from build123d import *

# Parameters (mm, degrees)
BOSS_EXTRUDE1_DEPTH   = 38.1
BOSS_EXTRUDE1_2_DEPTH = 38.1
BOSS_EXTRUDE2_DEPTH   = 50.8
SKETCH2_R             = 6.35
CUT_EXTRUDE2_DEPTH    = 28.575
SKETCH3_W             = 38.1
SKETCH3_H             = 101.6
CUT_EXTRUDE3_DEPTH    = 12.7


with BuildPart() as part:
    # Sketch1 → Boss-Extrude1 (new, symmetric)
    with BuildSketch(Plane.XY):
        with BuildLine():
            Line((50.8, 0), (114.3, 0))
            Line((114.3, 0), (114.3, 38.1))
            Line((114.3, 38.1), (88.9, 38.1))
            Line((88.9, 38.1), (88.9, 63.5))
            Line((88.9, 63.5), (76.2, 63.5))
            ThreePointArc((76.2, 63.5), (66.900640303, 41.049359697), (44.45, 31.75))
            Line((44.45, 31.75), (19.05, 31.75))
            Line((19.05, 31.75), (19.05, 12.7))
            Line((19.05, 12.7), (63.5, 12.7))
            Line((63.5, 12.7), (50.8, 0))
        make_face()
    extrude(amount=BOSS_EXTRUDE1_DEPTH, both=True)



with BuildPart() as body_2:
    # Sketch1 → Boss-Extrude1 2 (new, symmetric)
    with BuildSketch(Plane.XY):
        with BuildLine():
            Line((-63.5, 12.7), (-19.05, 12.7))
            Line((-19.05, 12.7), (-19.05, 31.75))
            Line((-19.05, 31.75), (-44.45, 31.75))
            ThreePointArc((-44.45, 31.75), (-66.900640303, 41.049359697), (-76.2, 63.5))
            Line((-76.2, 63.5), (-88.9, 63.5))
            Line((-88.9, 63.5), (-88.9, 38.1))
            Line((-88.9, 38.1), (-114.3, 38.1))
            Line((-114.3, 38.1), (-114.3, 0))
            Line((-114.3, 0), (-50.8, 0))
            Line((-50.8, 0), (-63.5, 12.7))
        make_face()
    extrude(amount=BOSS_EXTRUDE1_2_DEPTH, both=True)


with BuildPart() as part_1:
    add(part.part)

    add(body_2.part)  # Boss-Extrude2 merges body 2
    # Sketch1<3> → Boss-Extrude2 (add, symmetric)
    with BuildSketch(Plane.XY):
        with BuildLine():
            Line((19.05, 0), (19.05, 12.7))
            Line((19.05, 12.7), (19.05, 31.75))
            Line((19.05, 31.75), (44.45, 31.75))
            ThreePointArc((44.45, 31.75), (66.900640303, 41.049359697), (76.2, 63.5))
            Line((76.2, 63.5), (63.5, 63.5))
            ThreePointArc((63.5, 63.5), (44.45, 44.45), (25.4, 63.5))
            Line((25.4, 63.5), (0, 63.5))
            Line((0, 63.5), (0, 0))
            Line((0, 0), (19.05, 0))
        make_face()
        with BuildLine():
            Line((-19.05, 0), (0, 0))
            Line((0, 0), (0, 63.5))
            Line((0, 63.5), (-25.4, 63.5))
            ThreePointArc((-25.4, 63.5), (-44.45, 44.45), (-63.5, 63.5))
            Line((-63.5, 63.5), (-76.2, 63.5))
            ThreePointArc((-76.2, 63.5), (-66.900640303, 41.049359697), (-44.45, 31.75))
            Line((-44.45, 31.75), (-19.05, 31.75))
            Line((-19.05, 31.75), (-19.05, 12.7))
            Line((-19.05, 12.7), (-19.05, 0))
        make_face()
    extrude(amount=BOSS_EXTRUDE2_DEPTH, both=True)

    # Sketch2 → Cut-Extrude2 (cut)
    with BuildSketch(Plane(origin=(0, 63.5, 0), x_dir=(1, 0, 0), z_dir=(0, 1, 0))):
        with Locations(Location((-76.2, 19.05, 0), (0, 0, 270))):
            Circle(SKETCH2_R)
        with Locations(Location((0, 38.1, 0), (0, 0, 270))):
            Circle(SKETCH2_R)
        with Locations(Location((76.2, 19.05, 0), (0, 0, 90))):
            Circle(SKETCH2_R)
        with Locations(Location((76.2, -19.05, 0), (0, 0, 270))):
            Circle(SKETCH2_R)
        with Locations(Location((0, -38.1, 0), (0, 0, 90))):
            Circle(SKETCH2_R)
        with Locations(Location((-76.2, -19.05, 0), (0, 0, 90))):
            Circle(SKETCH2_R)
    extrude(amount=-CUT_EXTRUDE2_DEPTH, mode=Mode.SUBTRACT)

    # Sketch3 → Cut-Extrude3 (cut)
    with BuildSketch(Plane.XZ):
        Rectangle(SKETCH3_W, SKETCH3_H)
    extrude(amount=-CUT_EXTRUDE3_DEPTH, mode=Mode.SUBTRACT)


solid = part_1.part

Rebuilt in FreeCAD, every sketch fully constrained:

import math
import FreeCAD as App
import Part
import Sketcher

V = App.Vector
Q = App.Units.Quantity

doc = App.newDocument("Part")
body = doc.addObject("PartDesign::Body", "Body")

# Sketch on XY plane
sketch1 = body.newObject("Sketcher::SketchObject", "Sketch")
sketch1.AttachmentSupport = (doc.getObject("XY_Plane"), [""])
sketch1.MapMode = "FlatFace"
sketch1.addGeometry(Part.LineSegment(V(51, 0, 0), V(114, 0, 0)), False)
sketch1.addGeometry(Part.LineSegment(V(114, 0, 0), V(114, 38, 0)), False)
sketch1.addGeometry(Part.LineSegment(V(114, 38, 0), V(89, 38, 0)), False)
sketch1.addGeometry(Part.LineSegment(V(89, 38, 0), V(89, 64, 0)), False)
sketch1.addGeometry(Part.LineSegment(V(89, 64, 0), V(76, 64, 0)), False)
sketch1.addGeometry(Part.ArcOfCircle(Part.Circle(V(44, 63, 0), V(0, 0, 1), 32), math.radians(-90), math.radians(0)), False)
sketch1.addGeometry(Part.LineSegment(V(44, 32, 0), V(19, 32, 0)), False)
sketch1.addGeometry(Part.LineSegment(V(19, 32, 0), V(19, 13, 0)), False)
sketch1.addGeometry(Part.LineSegment(V(19, 13, 0), V(64, 13, 0)), False)
sketch1.addGeometry(Part.LineSegment(V(64, 13, 0), V(51, 0, 0)), False)
sketch1.addConstraint(Sketcher.Constraint("Coincident", 0, 2, 1, 1))
sketch1.addConstraint(Sketcher.Constraint("Coincident", 1, 2, 2, 1))
sketch1.addConstraint(Sketcher.Constraint("Coincident", 2, 2, 3, 1))
sketch1.addConstraint(Sketcher.Constraint("Coincident", 3, 2, 4, 1))
sketch1.addConstraint(Sketcher.Constraint("Coincident", 4, 2, 5, 2))
sketch1.addConstraint(Sketcher.Constraint("Tangent", 5, 1, 6, 1))
sketch1.addConstraint(Sketcher.Constraint("Coincident", 6, 2, 7, 1))
sketch1.addConstraint(Sketcher.Constraint("Coincident", 7, 2, 8, 1))
sketch1.addConstraint(Sketcher.Constraint("Coincident", 8, 2, 9, 1))
sketch1.addConstraint(Sketcher.Constraint("Coincident", 9, 2, 0, 1))
sketch1.addConstraint(Sketcher.Constraint("Horizontal", 0))
sketch1.addConstraint(Sketcher.Constraint("Vertical", 1))
sketch1.addConstraint(Sketcher.Constraint("Horizontal", 2))
sketch1.addConstraint(Sketcher.Constraint("Vertical", 3))
sketch1.addConstraint(Sketcher.Constraint("Horizontal", 4))
sketch1.addConstraint(Sketcher.Constraint("Horizontal", 6))
sketch1.addConstraint(Sketcher.Constraint("Vertical", 7))
sketch1.addConstraint(Sketcher.Constraint("Horizontal", 8))
sketch1.addConstraint(Sketcher.Constraint("PointOnObject", 0, 2, -1))
sketch1.addConstraint(Sketcher.Constraint("Horizontal", 5, 3, 3, 2))
sketch1.addConstraint(Sketcher.Constraint("Equal", 2, 6))
sketch1.addConstraint(Sketcher.Constraint("Equal", 6, 3))
sketch1.addConstraint(Sketcher.Constraint("DistanceX", 2, 2, 2, 1, Q("1 in")))
sketch1.addConstraint(Sketcher.Constraint("Radius", 5, Q("1.25 in")))
sketch1.addConstraint(Sketcher.Constraint("DistanceX", 0, 1, 0, 2, Q("2.5 in")))
sketch1.addConstraint(Sketcher.Constraint("DistanceX", 4, 2, 4, 1, Q("0.5 in")))
sketch1.addConstraint(Sketcher.Constraint("DistanceY", 1, 1, 1, 2, Q("1.5 in")))
sketch1.addConstraint(Sketcher.Constraint("DistanceX", -1, 1, 4, 2, Q("3 in")))
sketch1.addConstraint(Sketcher.Constraint("Angle", 9, Q("-135 deg")))
sketch1.addConstraint(Sketcher.Constraint("DistanceY", 7, 2, 5, 3, Q("2 in")))
pad1 = body.newObject("PartDesign::Pad", "Pad")
pad1.Profile = sketch1
pad1.Length = Q("3 in")
pad1.Midplane = True
body2 = doc.addObject("PartDesign::Body", "Body001")

# Sketch on XY plane
sketch2 = body2.newObject("Sketcher::SketchObject", "Sketch001")
sketch2.AttachmentSupport = (doc.getObject("XY_Plane001"), [""])
sketch2.MapMode = "FlatFace"
sketch2.addGeometry(Part.LineSegment(V(-64, 13, 0), V(-19, 13, 0)), False)
sketch2.addGeometry(Part.LineSegment(V(-19, 13, 0), V(-19, 32, 0)), False)
sketch2.addGeometry(Part.LineSegment(V(-19, 32, 0), V(-44, 32, 0)), False)
sketch2.addGeometry(Part.ArcOfCircle(Part.Circle(V(-44, 63, 0), V(0, 0, 1), 32), math.radians(180), math.radians(270)), False)
sketch2.addGeometry(Part.LineSegment(V(-76, 64, 0), V(-89, 64, 0)), False)
sketch2.addGeometry(Part.LineSegment(V(-89, 64, 0), V(-89, 38, 0)), False)
sketch2.addGeometry(Part.LineSegment(V(-89, 38, 0), V(-114, 38, 0)), False)
sketch2.addGeometry(Part.LineSegment(V(-114, 38, 0), V(-114, 0, 0)), False)
sketch2.addGeometry(Part.LineSegment(V(-114, 0, 0), V(-51, 0, 0)), False)
sketch2.addGeometry(Part.LineSegment(V(-51, 0, 0), V(-64, 13, 0)), False)
sketch2.addConstraint(Sketcher.Constraint("Coincident", 0, 2, 1, 1))
sketch2.addConstraint(Sketcher.Constraint("Coincident", 1, 2, 2, 1))
sketch2.addConstraint(Sketcher.Constraint("Tangent", 2, 2, 3, 2))
sketch2.addConstraint(Sketcher.Constraint("Coincident", 3, 1, 4, 1))
sketch2.addConstraint(Sketcher.Constraint("Coincident", 4, 2, 5, 1))
sketch2.addConstraint(Sketcher.Constraint("Coincident", 5, 2, 6, 1))
sketch2.addConstraint(Sketcher.Constraint("Coincident", 6, 2, 7, 1))
sketch2.addConstraint(Sketcher.Constraint("Coincident", 7, 2, 8, 1))
sketch2.addConstraint(Sketcher.Constraint("Coincident", 8, 2, 9, 1))
sketch2.addConstraint(Sketcher.Constraint("Coincident", 9, 2, 0, 1))
sketch2.addConstraint(Sketcher.Constraint("Horizontal", 0))
sketch2.addConstraint(Sketcher.Constraint("Vertical", 1))
sketch2.addConstraint(Sketcher.Constraint("Horizontal", 2))
sketch2.addConstraint(Sketcher.Constraint("Horizontal", 4))
sketch2.addConstraint(Sketcher.Constraint("Vertical", 5))
sketch2.addConstraint(Sketcher.Constraint("Horizontal", 6))
sketch2.addConstraint(Sketcher.Constraint("Vertical", 7))
sketch2.addConstraint(Sketcher.Constraint("Horizontal", 8))
sketch2.addConstraint(Sketcher.Constraint("PointOnObject", 7, 2, -1))
sketch2.addConstraint(Sketcher.Constraint("Equal", 2, 6))
sketch2.addConstraint(Sketcher.Constraint("Equal", 6, 5))
sketch2.addConstraint(Sketcher.Constraint("DistanceX", 2, 2, 2, 1, Q("1 in")))
sketch2.addConstraint(Sketcher.Constraint("Radius", 3, Q("1.25 in")))
sketch2.addConstraint(Sketcher.Constraint("DistanceX", 4, 2, 4, 1, Q("0.5 in")))
sketch2.addConstraint(Sketcher.Constraint("DistanceX", 8, 1, 8, 2, Q("2.5 in")))
sketch2.addConstraint(Sketcher.Constraint("DistanceY", 7, 2, 7, 1, Q("1.5 in")))
sketch2.addConstraint(Sketcher.Constraint("DistanceX", 3, 1, -1, 1, Q("3 in")))
sketch2.addConstraint(Sketcher.Constraint("Angle", 9, Q("135 deg")))
sketch2.addConstraint(Sketcher.Constraint("DistanceY", 0, 2, 3, 3, Q("2 in")))
sketch2.addConstraint(Sketcher.Constraint("DistanceY", 0, 2, 3, 1, Q("2 in")))
pad2 = body2.newObject("PartDesign::Pad", "Pad001")
pad2.Profile = sketch2
pad2.Length = Q("3 in")
pad2.Midplane = True
body.AllowCompound = True
doc.recompute()

boolean = body.newObject("PartDesign::Boolean", "Boolean")
boolean.Type = "Fuse"
boolean.addObjects([body2])

# Sketch on XY plane
sketch3 = body.newObject("Sketcher::SketchObject", "Sketch002")
sketch3.AttachmentSupport = (doc.getObject("XY_Plane"), [""])
sketch3.MapMode = "FlatFace"
sketch3.addGeometry(Part.LineSegment(V(19, 0, 0), V(19, 32, 0)), False)
sketch3.addGeometry(Part.LineSegment(V(19, 32, 0), V(44, 32, 0)), False)
sketch3.addGeometry(Part.ArcOfCircle(Part.Circle(V(44, 63, 0), V(0, 0, 1), 32), math.radians(-90), math.radians(0)), False)
sketch3.addGeometry(Part.LineSegment(V(76, 64, 0), V(64, 64, 0)), False)
sketch3.addGeometry(Part.ArcOfCircle(Part.Circle(V(44, 64, 0), V(0, 0, 1), 19), math.radians(180), math.radians(360)), False)
sketch3.addGeometry(Part.LineSegment(V(25, 64, 0), V(-25, 64, 0)), False)
sketch3.addGeometry(Part.ArcOfCircle(Part.Circle(V(-44, 64, 0), V(0, 0, 1), 19), math.radians(180), math.radians(360)), False)
sketch3.addGeometry(Part.LineSegment(V(-64, 64, 0), V(-76, 64, 0)), False)
sketch3.addGeometry(Part.ArcOfCircle(Part.Circle(V(-44, 63, 0), V(0, 0, 1), 32), math.radians(180), math.radians(270)), False)
sketch3.addGeometry(Part.LineSegment(V(-44, 32, 0), V(-19, 32, 0)), False)
sketch3.addGeometry(Part.LineSegment(V(-19, 32, 0), V(-19, 0, 0)), False)
sketch3.addGeometry(Part.LineSegment(V(-19, 0, 0), V(19, 0, 0)), False)
sketch3.addConstraint(Sketcher.Constraint("Coincident", 0, 2, 1, 1))
sketch3.addConstraint(Sketcher.Constraint("Tangent", 1, 2, 2, 1))
sketch3.addConstraint(Sketcher.Constraint("Coincident", 2, 2, 3, 1))
sketch3.addConstraint(Sketcher.Constraint("Coincident", 3, 2, 4, 2))
sketch3.addConstraint(Sketcher.Constraint("Coincident", 4, 1, 5, 1))
sketch3.addConstraint(Sketcher.Constraint("Coincident", 5, 2, 6, 2))
sketch3.addConstraint(Sketcher.Constraint("Coincident", 6, 1, 7, 1))
sketch3.addConstraint(Sketcher.Constraint("Coincident", 7, 2, 8, 1))
sketch3.addConstraint(Sketcher.Constraint("Tangent", 8, 2, 9, 1))
sketch3.addConstraint(Sketcher.Constraint("Coincident", 9, 2, 10, 1))
sketch3.addConstraint(Sketcher.Constraint("Coincident", 10, 2, 11, 1))
sketch3.addConstraint(Sketcher.Constraint("Coincident", 11, 2, 0, 1))
sketch3.addConstraint(Sketcher.Constraint("Vertical", 0))
sketch3.addConstraint(Sketcher.Constraint("Horizontal", 1))
sketch3.addConstraint(Sketcher.Constraint("Horizontal", 3))
sketch3.addConstraint(Sketcher.Constraint("Horizontal", 5))
sketch3.addConstraint(Sketcher.Constraint("Horizontal", 7))
sketch3.addConstraint(Sketcher.Constraint("Horizontal", 9))
sketch3.addConstraint(Sketcher.Constraint("Vertical", 10))
sketch3.addConstraint(Sketcher.Constraint("Horizontal", 11))
sketch3.addConstraint(Sketcher.Constraint("Coincident", 4, 3, 2, 3))
sketch3.addConstraint(Sketcher.Constraint("Coincident", 8, 3, 6, 3))
sketch3.addConstraint(Sketcher.Constraint("Equal", 4, 6))
sketch3.addConstraint(Sketcher.Constraint("Equal", 2, 8))
sketch3.addConstraint(Sketcher.Constraint("Symmetric", 10, 2, 11, 2, -1, 1))
sketch3.addConstraint(Sketcher.Constraint("Symmetric", 2, 3, 6, 3, -2))
sketch3.addConstraint(Sketcher.Constraint("Horizontal", 8, 3, 2, 2))
sketch3.addConstraint(Sketcher.Constraint("Horizontal", 3, 2, 4, 1))
sketch3.addConstraint(Sketcher.Constraint("Horizontal", 5, 2, 6, 1))
sketch3.addConstraint(Sketcher.Constraint("DistanceX", 1, 1, 1, 2, Q("1 in")))
sketch3.addConstraint(Sketcher.Constraint("DistanceX", 5, 2, 5, 1, Q("2 in")))
sketch3.addConstraint(Sketcher.Constraint("Radius", 2, Q("1.25 in")))
sketch3.addConstraint(Sketcher.Constraint("Radius", 4, Q("0.75 in")))
sketch3.addConstraint(Sketcher.Constraint("DistanceY", 0, 1, 0, 2, Q("1.25 in")))
pad3 = body.newObject("PartDesign::Pad", "Pad002")
pad3.Profile = sketch3
pad3.Length = Q("4 in")
pad3.Midplane = True

# Sketch on XZ plane
sketch4 = body.newObject("Sketcher::SketchObject", "Sketch003")
sketch4.AttachmentSupport = (doc.getObject("XZ_Plane"), [""])
sketch4.MapMode = "FlatFace"
sketch4.AttachmentOffset = App.Placement(V(0, 0, -2.5 * 25.4), App.Rotation())
sketch4.addGeometry(Part.Circle(V(-76, -19, 0), V(0, 0, 1), 6), False)
sketch4.addGeometry(Part.Circle(V(0, -38, 0), V(0, 0, 1), 6), False)
sketch4.addGeometry(Part.Circle(V(76, -19, 0), V(0, 0, 1), 6), False)
sketch4.addGeometry(Part.Circle(V(76, 19, 0), V(0, 0, 1), 6), False)
sketch4.addGeometry(Part.Circle(V(0, 38, 0), V(0, 0, 1), 6), False)
sketch4.addGeometry(Part.Circle(V(-76, 19, 0), V(0, 0, 1), 6), False)
sketch4.addConstraint(Sketcher.Constraint("Equal", 0, 1))
sketch4.addConstraint(Sketcher.Constraint("Equal", 1, 2))
sketch4.addConstraint(Sketcher.Constraint("Equal", 2, 3))
sketch4.addConstraint(Sketcher.Constraint("Equal", 3, 4))
sketch4.addConstraint(Sketcher.Constraint("Equal", 4, 5))
sketch4.addConstraint(Sketcher.Constraint("Symmetric", 0, 3, 3, 3, -1, 1))
sketch4.addConstraint(Sketcher.Constraint("Symmetric", 1, 3, 4, 3, -1, 1))
sketch4.addConstraint(Sketcher.Constraint("Symmetric", 2, 3, 5, 3, -1, 1))
sketch4.addConstraint(Sketcher.Constraint("Symmetric", 0, 3, 2, 3, -2))
sketch4.addConstraint(Sketcher.Constraint("PointOnObject", 1, 3, -2))
sketch4.addConstraint(Sketcher.Constraint("Diameter", 0, Q("0.5 in")))
sketch4.addConstraint(Sketcher.Constraint("DistanceX", 0, 3, -1, 1, Q("3 in")))
sketch4.addConstraint(Sketcher.Constraint("DistanceY", 1, 3, 4, 3, Q("3 in")))
sketch4.addConstraint(Sketcher.Constraint("DistanceY", 2, 3, 3, 3, Q("1.5 in")))
pocket1 = body.newObject("PartDesign::Pocket", "Pocket")
pocket1.Profile = sketch4
pocket1.Length = Q("1.125 in")
pocket1.Reversed = True

# Sketch on XZ plane
sketch5 = body.newObject("Sketcher::SketchObject", "Sketch004")
sketch5.AttachmentSupport = (doc.getObject("XZ_Plane"), [""])
sketch5.MapMode = "FlatFace"
sketch5.addGeometry(Part.LineSegment(V(-19, 51, 0), V(-19, -51, 0)), False)
sketch5.addGeometry(Part.LineSegment(V(-19, -51, 0), V(19, -51, 0)), False)
sketch5.addGeometry(Part.LineSegment(V(19, -51, 0), V(19, 51, 0)), False)
sketch5.addGeometry(Part.LineSegment(V(19, 51, 0), V(-19, 51, 0)), False)
sketch5.addConstraint(Sketcher.Constraint("Coincident", 0, 2, 1, 1))
sketch5.addConstraint(Sketcher.Constraint("Coincident", 1, 2, 2, 1))
sketch5.addConstraint(Sketcher.Constraint("Coincident", 2, 2, 3, 1))
sketch5.addConstraint(Sketcher.Constraint("Coincident", 3, 2, 0, 1))
sketch5.addConstraint(Sketcher.Constraint("Vertical", 0))
sketch5.addConstraint(Sketcher.Constraint("Horizontal", 1))
sketch5.addConstraint(Sketcher.Constraint("Vertical", 2))
sketch5.addConstraint(Sketcher.Constraint("Horizontal", 3))
sketch5.addConstraint(Sketcher.Constraint("Symmetric", 0, 2, 2, 2, -1, 1))
sketch5.addConstraint(Sketcher.Constraint("DistanceY", 0, 2, 0, 1, Q("4 in")))
sketch5.addConstraint(Sketcher.Constraint("DistanceX", 1, 1, 1, 2, Q("1.5 in")))
pocket2 = body.newObject("PartDesign::Pocket", "Pocket001")
pocket2.Profile = sketch5
pocket2.Length = Q("0.5 in")

doc.recompute()
